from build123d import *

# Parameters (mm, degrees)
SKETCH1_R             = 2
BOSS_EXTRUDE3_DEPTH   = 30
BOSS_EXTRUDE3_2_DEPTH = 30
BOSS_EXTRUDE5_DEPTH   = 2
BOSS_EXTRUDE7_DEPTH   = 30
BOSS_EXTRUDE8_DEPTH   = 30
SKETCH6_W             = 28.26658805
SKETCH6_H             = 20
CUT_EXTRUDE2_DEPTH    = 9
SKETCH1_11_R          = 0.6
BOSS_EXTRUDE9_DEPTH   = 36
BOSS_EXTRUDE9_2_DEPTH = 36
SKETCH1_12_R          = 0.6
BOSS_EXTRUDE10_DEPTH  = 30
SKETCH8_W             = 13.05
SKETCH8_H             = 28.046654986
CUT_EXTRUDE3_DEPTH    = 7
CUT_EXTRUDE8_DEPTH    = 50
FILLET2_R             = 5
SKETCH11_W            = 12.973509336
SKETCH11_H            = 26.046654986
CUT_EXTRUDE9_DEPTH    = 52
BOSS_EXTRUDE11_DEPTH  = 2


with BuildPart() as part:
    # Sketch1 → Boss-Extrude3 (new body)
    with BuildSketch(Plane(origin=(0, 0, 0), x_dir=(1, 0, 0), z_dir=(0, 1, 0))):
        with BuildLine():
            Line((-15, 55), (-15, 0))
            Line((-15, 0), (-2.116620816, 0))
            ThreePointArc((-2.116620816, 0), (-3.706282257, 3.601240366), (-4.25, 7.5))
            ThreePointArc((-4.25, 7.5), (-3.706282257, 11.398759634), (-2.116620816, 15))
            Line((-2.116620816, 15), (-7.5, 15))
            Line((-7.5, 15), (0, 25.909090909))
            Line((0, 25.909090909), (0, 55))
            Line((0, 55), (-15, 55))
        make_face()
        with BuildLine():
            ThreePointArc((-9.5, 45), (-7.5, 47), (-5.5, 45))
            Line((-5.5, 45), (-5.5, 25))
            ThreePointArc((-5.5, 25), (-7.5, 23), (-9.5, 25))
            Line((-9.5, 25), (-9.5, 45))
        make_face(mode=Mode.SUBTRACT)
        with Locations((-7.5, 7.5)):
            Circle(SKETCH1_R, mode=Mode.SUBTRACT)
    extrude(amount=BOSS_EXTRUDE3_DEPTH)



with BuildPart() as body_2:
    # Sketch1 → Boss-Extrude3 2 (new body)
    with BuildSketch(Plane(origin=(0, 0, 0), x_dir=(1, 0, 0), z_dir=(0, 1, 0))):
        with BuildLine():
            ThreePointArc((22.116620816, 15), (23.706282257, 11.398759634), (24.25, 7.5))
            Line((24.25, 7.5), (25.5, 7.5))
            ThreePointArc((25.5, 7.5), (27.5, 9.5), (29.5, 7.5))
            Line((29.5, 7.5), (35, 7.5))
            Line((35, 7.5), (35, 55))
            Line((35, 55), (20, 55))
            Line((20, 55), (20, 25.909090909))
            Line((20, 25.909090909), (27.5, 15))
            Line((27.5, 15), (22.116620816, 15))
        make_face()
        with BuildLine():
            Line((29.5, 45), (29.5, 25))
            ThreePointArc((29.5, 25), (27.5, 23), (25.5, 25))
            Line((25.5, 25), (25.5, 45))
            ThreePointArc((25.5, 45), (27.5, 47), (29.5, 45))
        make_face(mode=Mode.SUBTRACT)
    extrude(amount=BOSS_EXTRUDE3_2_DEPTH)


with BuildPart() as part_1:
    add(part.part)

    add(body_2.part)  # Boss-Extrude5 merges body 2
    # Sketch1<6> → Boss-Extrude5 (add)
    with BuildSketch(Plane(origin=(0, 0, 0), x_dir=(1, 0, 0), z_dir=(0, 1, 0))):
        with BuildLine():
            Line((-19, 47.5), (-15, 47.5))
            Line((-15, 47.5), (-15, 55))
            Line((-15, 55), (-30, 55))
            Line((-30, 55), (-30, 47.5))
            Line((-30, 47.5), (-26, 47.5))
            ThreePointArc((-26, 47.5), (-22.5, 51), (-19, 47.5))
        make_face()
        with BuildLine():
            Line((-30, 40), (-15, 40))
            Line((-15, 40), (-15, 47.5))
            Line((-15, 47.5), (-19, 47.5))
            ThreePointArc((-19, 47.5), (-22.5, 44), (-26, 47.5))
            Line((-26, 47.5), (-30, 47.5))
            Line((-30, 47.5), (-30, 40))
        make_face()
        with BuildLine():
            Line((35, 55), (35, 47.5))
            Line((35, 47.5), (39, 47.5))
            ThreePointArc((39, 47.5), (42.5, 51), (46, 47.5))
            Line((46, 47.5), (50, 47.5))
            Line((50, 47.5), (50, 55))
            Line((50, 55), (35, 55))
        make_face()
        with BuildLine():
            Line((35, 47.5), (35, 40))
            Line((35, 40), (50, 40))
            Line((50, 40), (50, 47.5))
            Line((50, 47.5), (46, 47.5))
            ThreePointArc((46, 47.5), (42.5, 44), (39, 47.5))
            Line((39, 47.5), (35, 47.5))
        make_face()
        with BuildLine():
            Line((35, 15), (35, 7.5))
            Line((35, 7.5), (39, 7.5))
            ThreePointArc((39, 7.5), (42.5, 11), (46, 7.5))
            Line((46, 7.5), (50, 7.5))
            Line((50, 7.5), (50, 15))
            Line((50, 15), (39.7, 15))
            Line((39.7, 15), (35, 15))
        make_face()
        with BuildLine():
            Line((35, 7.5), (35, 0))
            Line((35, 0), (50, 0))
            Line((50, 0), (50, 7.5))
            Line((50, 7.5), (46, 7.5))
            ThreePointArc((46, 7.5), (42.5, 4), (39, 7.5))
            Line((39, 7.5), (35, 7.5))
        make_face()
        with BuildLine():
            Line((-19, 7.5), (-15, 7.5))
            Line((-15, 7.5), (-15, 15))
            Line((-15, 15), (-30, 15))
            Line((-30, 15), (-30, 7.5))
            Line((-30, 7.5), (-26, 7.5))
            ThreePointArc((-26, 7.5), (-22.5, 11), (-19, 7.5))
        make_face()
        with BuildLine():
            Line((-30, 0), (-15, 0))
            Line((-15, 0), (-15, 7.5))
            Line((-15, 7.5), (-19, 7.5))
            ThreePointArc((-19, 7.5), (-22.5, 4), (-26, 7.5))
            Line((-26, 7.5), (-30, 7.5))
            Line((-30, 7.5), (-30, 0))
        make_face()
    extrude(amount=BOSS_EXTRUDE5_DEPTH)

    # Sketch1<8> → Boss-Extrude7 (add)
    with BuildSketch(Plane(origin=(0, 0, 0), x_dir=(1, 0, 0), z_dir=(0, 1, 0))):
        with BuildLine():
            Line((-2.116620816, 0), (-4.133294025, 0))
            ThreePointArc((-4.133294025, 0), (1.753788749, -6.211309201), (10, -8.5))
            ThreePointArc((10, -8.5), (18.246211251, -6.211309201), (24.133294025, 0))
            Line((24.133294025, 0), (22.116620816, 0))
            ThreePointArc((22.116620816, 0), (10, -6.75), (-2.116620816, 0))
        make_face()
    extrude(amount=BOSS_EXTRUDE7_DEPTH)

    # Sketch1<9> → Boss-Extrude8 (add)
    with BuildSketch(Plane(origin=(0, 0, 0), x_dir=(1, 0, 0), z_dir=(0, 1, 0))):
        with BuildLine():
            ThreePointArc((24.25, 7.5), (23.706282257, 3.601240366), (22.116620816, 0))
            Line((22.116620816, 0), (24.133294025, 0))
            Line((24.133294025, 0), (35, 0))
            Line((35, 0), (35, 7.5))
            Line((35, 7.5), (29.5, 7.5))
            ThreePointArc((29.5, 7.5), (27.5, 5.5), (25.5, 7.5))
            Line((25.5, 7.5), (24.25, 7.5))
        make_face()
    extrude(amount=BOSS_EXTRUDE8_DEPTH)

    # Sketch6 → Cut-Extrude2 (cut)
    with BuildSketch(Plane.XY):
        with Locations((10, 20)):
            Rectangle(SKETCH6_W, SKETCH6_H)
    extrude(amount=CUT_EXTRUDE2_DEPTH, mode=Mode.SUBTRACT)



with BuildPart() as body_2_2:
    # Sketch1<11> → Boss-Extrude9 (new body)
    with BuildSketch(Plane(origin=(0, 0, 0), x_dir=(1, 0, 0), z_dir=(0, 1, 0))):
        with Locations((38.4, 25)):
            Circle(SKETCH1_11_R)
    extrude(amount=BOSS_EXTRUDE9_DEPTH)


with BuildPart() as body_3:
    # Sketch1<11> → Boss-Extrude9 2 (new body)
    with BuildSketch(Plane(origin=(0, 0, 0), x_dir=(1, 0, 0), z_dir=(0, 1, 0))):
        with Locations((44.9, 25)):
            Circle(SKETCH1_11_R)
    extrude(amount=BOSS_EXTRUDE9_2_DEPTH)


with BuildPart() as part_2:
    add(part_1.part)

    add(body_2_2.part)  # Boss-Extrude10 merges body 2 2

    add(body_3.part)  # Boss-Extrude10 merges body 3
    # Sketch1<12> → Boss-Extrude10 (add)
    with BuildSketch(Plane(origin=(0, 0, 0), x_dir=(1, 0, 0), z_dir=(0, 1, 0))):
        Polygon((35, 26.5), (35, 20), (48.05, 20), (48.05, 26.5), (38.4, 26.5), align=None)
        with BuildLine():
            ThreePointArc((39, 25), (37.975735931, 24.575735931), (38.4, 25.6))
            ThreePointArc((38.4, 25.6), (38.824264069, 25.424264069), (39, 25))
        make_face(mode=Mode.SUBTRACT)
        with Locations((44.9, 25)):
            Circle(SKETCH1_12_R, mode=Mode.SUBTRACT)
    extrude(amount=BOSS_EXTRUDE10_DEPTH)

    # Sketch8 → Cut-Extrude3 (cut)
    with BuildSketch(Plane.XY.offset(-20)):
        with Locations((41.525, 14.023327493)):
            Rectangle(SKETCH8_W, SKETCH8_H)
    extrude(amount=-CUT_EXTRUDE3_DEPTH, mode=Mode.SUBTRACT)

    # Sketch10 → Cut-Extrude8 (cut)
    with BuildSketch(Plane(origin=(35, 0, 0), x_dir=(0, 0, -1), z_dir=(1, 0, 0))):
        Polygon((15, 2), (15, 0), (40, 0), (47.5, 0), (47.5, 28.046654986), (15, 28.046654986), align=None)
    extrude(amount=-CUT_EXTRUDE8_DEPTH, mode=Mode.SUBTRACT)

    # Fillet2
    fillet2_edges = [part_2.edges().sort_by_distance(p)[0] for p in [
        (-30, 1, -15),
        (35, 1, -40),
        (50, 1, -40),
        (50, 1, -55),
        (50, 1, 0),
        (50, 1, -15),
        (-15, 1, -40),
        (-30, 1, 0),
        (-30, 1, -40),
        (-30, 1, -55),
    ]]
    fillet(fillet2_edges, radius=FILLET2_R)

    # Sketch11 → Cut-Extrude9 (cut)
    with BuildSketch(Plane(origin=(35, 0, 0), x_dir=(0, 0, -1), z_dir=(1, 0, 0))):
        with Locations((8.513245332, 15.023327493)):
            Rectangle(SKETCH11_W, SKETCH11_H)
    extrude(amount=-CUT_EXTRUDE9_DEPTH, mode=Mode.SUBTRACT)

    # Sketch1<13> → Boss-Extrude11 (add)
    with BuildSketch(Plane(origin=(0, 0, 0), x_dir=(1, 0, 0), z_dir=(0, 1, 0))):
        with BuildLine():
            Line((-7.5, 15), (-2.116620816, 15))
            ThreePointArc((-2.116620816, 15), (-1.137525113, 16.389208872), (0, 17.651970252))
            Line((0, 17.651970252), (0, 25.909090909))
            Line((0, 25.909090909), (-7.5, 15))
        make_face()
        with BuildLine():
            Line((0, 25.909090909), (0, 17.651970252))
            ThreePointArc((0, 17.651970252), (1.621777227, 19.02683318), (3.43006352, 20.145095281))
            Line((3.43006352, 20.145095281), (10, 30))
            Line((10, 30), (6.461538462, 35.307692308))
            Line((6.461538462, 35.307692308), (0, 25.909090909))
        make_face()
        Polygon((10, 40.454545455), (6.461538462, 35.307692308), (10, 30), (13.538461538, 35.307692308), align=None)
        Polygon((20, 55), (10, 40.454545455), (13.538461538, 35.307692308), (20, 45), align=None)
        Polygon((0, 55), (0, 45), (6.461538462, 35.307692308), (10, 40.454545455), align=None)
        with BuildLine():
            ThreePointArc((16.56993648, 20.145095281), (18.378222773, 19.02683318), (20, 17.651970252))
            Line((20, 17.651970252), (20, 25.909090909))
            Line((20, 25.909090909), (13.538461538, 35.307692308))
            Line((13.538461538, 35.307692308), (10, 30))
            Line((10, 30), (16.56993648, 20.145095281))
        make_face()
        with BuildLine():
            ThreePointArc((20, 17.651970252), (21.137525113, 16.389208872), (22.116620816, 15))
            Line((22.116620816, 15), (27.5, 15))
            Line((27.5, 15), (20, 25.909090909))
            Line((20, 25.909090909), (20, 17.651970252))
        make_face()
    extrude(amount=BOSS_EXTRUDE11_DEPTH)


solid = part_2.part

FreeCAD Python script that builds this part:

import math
import FreeCAD as App
import Part
import Sketcher
Q = App.Units.Quantity


def edges_at(feature, points):
    """Names of the edges that pass closest to the given points."""
    edges = feature.Shape.Edges
    near = lambda p: min(range(len(edges)), key=lambda i: edges[i].distToShape(Part.Vertex(*p))[0])
    return sorted({f"Edge{near(p) + 1}" for p in points})


def add_polygon(sketch, points):
    """Adds a closed chain of lines whose ends are joined by coincident constraints."""
    first, n = sketch.GeometryCount, len(points)
    for a, b in zip(points, points[1:] + points[:1]):
        sketch.addGeometry(Part.LineSegment(App.Vector(*a, 0), App.Vector(*b, 0)), False)
    for i in range(n):
        sketch.addConstraint(Sketcher.Constraint("Coincident", first + i, 2, first + (i + 1) % n, 1))

doc = App.newDocument("Part")
body = doc.addObject("PartDesign::Body", "Body")

sketch1 = body.newObject("Sketcher::SketchObject", "Sketch")
sketch1.AttachmentSupport = (doc.getObject("XZ_Plane"), [""])
sketch1.MapMode = "FlatFace"
sketch1.addGeometry(Part.LineSegment(App.Vector(-15, -55, 0), App.Vector(-15, 0, 0)), False)
sketch1.addGeometry(Part.LineSegment(App.Vector(-15, 0, 0), App.Vector(-2.116621, 0, 0)), False)
sketch1.addGeometry(Part.ArcOfCircle(Part.Circle(App.Vector(10, -7.5, 0), App.Vector(0, 0, 1), 14.25), math.radians(148.243136), math.radians(180)), False)
sketch1.addGeometry(Part.ArcOfCircle(Part.Circle(App.Vector(10, -7.5, 0), App.Vector(0, 0, 1), 14.25), math.radians(-180), math.radians(-148.243136)), False)
sketch1.addGeometry(Part.LineSegment(App.Vector(-2.116621, -15, 0), App.Vector(-7.5, -15, 0)), False)
sketch1.addGeometry(Part.LineSegment(App.Vector(-7.5, -15, 0), App.Vector(0, -25.909091, 0)), False)
sketch1.addGeometry(Part.LineSegment(App.Vector(0, -25.909091, 0), App.Vector(0, -55, 0)), False)
sketch1.addGeometry(Part.LineSegment(App.Vector(0, -55, 0), App.Vector(-15, -55, 0)), False)
sketch1.addGeometry(Part.Circle(App.Vector(-7.5, -7.5, 0), App.Vector(0, 0, 1), 2), False)
sketch1.addGeometry(Part.LineSegment(App.Vector(-9.5, -25, 0), App.Vector(-9.5, -45, 0)), False)
sketch1.addGeometry(Part.ArcOfCircle(Part.Circle(App.Vector(-7.5, -45, 0), App.Vector(0, 0, 1), 2), math.radians(180), math.radians(360)), False)
sketch1.addGeometry(Part.LineSegment(App.Vector(-5.5, -45, 0), App.Vector(-5.5, -25, 0)), False)
sketch1.addGeometry(Part.ArcOfCircle(Part.Circle(App.Vector(-7.5, -25, 0), App.Vector(0, 0, 1), 2), math.radians(0), math.radians(180)), False)
sketch1.addConstraint(Sketcher.Constraint("Coincident", 0, 2, 1, 1))
sketch1.addConstraint(Sketcher.Constraint("Coincident", 1, 2, 2, 1))
sketch1.addConstraint(Sketcher.Constraint("Tangent", 2, 2, 3, 1))
sketch1.addConstraint(Sketcher.Constraint("Coincident", 3, 2, 4, 1))
sketch1.addConstraint(Sketcher.Constraint("Coincident", 4, 2, 5, 1))
sketch1.addConstraint(Sketcher.Constraint("Coincident", 5, 2, 6, 1))
sketch1.addConstraint(Sketcher.Constraint("Coincident", 6, 2, 7, 1))
sketch1.addConstraint(Sketcher.Constraint("Coincident", 7, 2, 0, 1))
sketch1.addConstraint(Sketcher.Constraint("Tangent", 9, 2, 10, 1))
sketch1.addConstraint(Sketcher.Constraint("Tangent", 10, 2, 11, 1))
sketch1.addConstraint(Sketcher.Constraint("Tangent", 11, 2, 12, 1))
sketch1.addConstraint(Sketcher.Constraint("Tangent", 12, 2, 9, 1))
sketch1.addConstraint(Sketcher.Constraint("Vertical", 0))
sketch1.addConstraint(Sketcher.Constraint("Horizontal", 1))
sketch1.addConstraint(Sketcher.Constraint("Horizontal", 4))
sketch1.addConstraint(Sketcher.Constraint("Vertical", 6))
sketch1.addConstraint(Sketcher.Constraint("Horizontal", 7))
sketch1.addConstraint(Sketcher.Constraint("Vertical", 9))
sketch1.addConstraint(Sketcher.Constraint("Vertical", 11))
sketch1.addConstraint(Sketcher.Constraint("Equal", 2, 3))
sketch1.addConstraint(Sketcher.Constraint("Equal", 8, 10))
sketch1.addConstraint(Sketcher.Constraint("PointOnObject", 0, 2, -1))
sketch1.addConstraint(Sketcher.Constraint("PointOnObject", 5, 2, -2))
sketch1.addConstraint(Sketcher.Constraint("Horizontal", 3, 3, 8, 3))
sketch1.addConstraint(Sketcher.Constraint("Horizontal", 8, 3, 2, 2))
sketch1.addConstraint(Sketcher.Constraint("Vertical", 8, 3, 10, 3))
sketch1.addConstraint(Sketcher.Constraint("Vertical", 1, 2, 3, 2))
sketch1.addConstraint(Sketcher.Constraint("Vertical", 12, 3, 4, 2))
sketch1.addConstraint(Sketcher.Constraint("Diameter", 8, Q("4 mm")))
sketch1.addConstraint(Sketcher.Constraint("DistanceX", 7, 2, 7, 1, Q("15 mm")))
sketch1.addConstraint(Sketcher.Constraint("DistanceY", 0, 1, 0, 2, Q("55 mm")))
sketch1.addConstraint(Sketcher.Constraint("DistanceY", 9, 2, 9, 1, Q("20 mm")))
sketch1.addConstraint(Sketcher.Constraint("Radius", 2, Q("14.25 mm")))
sketch1.addConstraint(Sketcher.Constraint("DistanceX", -1, 1, 2, 3, Q("10 mm")))
sketch1.addConstraint(Sketcher.Constraint("DistanceY", 10, 3, -1, 1, Q("45 mm")))
sketch1.addConstraint(Sketcher.Constraint("DistanceY", 3, 2, -1, 1, Q("15 mm")))
sketch1.addConstraint(Sketcher.Constraint("DistanceX", 8, 3, -1, 1, Q("7.5 mm")))
sketch1.addConstraint(Sketcher.Constraint("DistanceY", 6, 2, 6, 1, Q("29.090909 mm")))
pad1 = body.newObject("PartDesign::Pad", "Pad")
pad1.Profile = sketch1
pad1.Length = 30
pad1.Reversed = True
body2 = doc.addObject("PartDesign::Body", "Body001")

sketch2 = body2.newObject("Sketcher::SketchObject", "Sketch001")
sketch2.AttachmentSupport = (doc.getObject("XZ_Plane001"), [""])
sketch2.MapMode = "FlatFace"
sketch2.addGeometry(Part.ArcOfCircle(Part.Circle(App.Vector(10, -7.5, 0), App.Vector(0, 0, 1), 14.25), math.radians(-31.756864), math.radians(0)), False)
sketch2.addGeometry(Part.LineSegment(App.Vector(24.25, -7.5, 0), App.Vector(25.5, -7.5, 0)), False)
sketch2.addGeometry(Part.ArcOfCircle(Part.Circle(App.Vector(27.5, -7.5, 0), App.Vector(0, 0, 1), 2), math.radians(180), math.radians(360)), False)
sketch2.addGeometry(Part.LineSegment(App.Vector(29.5, -7.5, 0), App.Vector(35, -7.5, 0)), False)
sketch2.addGeometry(Part.LineSegment(App.Vector(35, -7.5, 0), App.Vector(35, -55, 0)), False)
sketch2.addGeometry(Part.LineSegment(App.Vector(35, -55, 0), App.Vector(20, -55, 0)), False)
sketch2.addGeometry(Part.LineSegment(App.Vector(20, -55, 0), App.Vector(20, -25.909091, 0)), False)
sketch2.addGeometry(Part.LineSegment(App.Vector(20, -25.909091, 0), App.Vector(27.5, -15, 0)), False)
sketch2.addGeometry(Part.LineSegment(App.Vector(27.5, -15, 0), App.Vector(22.116621, -15, 0)), False)
sketch2.addGeometry(Part.ArcOfCircle(Part.Circle(App.Vector(27.5, -45, 0), App.Vector(0, 0, 1), 2), math.radians(180), math.radians(360)), False)
sketch2.addGeometry(Part.LineSegment(App.Vector(29.5, -45, 0), App.Vector(29.5, -25, 0)), False)
sketch2.addGeometry(Part.ArcOfCircle(Part.Circle(App.Vector(27.5, -25, 0), App.Vector(0, 0, 1), 2), math.radians(0), math.radians(180)), False)
sketch2.addGeometry(Part.LineSegment(App.Vector(25.5, -25, 0), App.Vector(25.5, -45, 0)), False)
sketch2.addConstraint(Sketcher.Constraint("Coincident", 0, 2, 1, 1))
sketch2.addConstraint(Sketcher.Constraint("Coincident", 1, 2, 2, 1))
sketch2.addConstraint(Sketcher.Constraint("Coincident", 2, 2, 3, 1))
sketch2.addConstraint(Sketcher.Constraint("Coincident", 3, 2, 4, 1))
sketch2.addConstraint(Sketcher.Constraint("Coincident", 4, 2, 5, 1))
sketch2.addConstraint(Sketcher.Constraint("Coincident", 5, 2, 6, 1))
sketch2.addConstraint(Sketcher.Constraint("Coincident", 6, 2, 7, 1))
sketch2.addConstraint(Sketcher.Constraint("Coincident", 7, 2, 8, 1))
sketch2.addConstraint(Sketcher.Constraint("Coincident", 8, 2, 0, 1))
sketch2.addConstraint(Sketcher.Constraint("Tangent", 9, 2, 10, 1))
sketch2.addConstraint(Sketcher.Constraint("Tangent", 10, 2, 11, 1))
sketch2.addConstraint(Sketcher.Constraint("Tangent", 11, 2, 12, 1))
sketch2.addConstraint(Sketcher.Constraint("Tangent", 12, 2, 9, 1))
sketch2.addConstraint(Sketcher.Constraint("Horizontal", 1))
sketch2.addConstraint(Sketcher.Constraint("Horizontal", 3))
sketch2.addConstraint(Sketcher.Constraint("Vertical", 4))
sketch2.addConstraint(Sketcher.Constraint("Horizontal", 5))
sketch2.addConstraint(Sketcher.Constraint("Vertical", 6))
sketch2.addConstraint(Sketcher.Constraint("Horizontal", 8))
sketch2.addConstraint(Sketcher.Constraint("Vertical", 10))
sketch2.addConstraint(Sketcher.Constraint("Vertical", 12))
sketch2.addConstraint(Sketcher.Constraint("Equal", 2, 9))
sketch2.addConstraint(Sketcher.Constraint("Horizontal", 0, 3, 2, 3))
sketch2.addConstraint(Sketcher.Constraint("Horizontal", 2, 3, 0, 2))
sketch2.addConstraint(Sketcher.Constraint("Horizontal", 1, 2, 2, 2))
sketch2.addConstraint(Sketcher.Constraint("Vertical", 2, 3, 9, 3))
sketch2.addConstraint(Sketcher.Constraint("Vertical", 11, 3, 7, 2))
sketch2.addConstraint(Sketcher.Constraint("Radius", 2, Q("2 mm")))
sketch2.addConstraint(Sketcher.Constraint("DistanceX", 5, 2, 5, 1, Q("15 mm")))
sketch2.addConstraint(Sketcher.Constraint("DistanceY", 10, 1, 10, 2, Q("20 mm")))
sketch2.addConstraint(Sketcher.Constraint("Radius", 0, Q("14.25 mm")))
sketch2.addConstraint(Sketcher.Constraint("DistanceX", 3, 1, 3, 2, Q("5.5 mm")))
sketch2.addConstraint(Sketcher.Constraint("DistanceY", 4, 2, 4, 1, Q("47.5 mm")))
sketch2.addConstraint(Sketcher.Constraint("DistanceX", -1, 1, 0, 3, Q("10 mm")))
sketch2.addConstraint(Sketcher.Constraint("DistanceY", 9, 3, -1, 1, Q("45 mm")))
sketch2.addConstraint(Sketcher.Constraint("DistanceX", -1, 1, 3, 2, Q("35 mm")))
sketch2.addConstraint(Sketcher.Constraint("DistanceY", 4, 2, -1, 1, Q("55 mm")))
sketch2.addConstraint(Sketcher.Constraint("DistanceY", 7, 2, -1, 1, Q("15 mm")))
sketch2.addConstraint(Sketcher.Constraint("DistanceY", 6, 1, 6, 2, Q("29.090909 mm")))
pad2 = body2.newObject("PartDesign::Pad", "Pad001")
pad2.Profile = sketch2
pad2.Length = 30
pad2.Reversed = True
body.AllowCompound = True
doc.recompute()

boolean = body.newObject("PartDesign::Boolean", "Boolean")
boolean.Type = "Fuse"
boolean.addObjects([body2])

sketch3 = body.newObject("Sketcher::SketchObject", "Sketch002")
sketch3.AttachmentSupport = (doc.getObject("XZ_Plane"), [""])
sketch3.MapMode = "FlatFace"
add_polygon(sketch3, [(-15, -55), (-30, -55), (-30, -40), (-15, -40)])
sketch3.addGeometry(Part.Circle(App.Vector(-22.5, -47.5, 0), App.Vector(0, 0, 1), 3.5), False)
add_polygon(sketch3, [(35, -55), (35, -40), (50, -40), (50, -55)])
sketch3.addGeometry(Part.Circle(App.Vector(42.5, -47.5, 0), App.Vector(0, 0, 1), 3.5), False)
add_polygon(sketch3, [(35, -15), (35, 0), (50, 0), (50, -15)])
sketch3.addGeometry(Part.Circle(App.Vector(42.5, -7.5, 0), App.Vector(0, 0, 1), 3.5), False)
add_polygon(sketch3, [(-15, -15), (-30, -15), (-30, 0), (-15, 0)])
sketch3.addGeometry(Part.Circle(App.Vector(-22.5, -7.5, 0), App.Vector(0, 0, 1), 3.5), False)
sketch3.addConstraint(Sketcher.Constraint("Horizontal", 0))
sketch3.addConstraint(Sketcher.Constraint("Vertical", 1))
sketch3.addConstraint(Sketcher.Constraint("Horizontal", 2))
sketch3.addConstraint(Sketcher.Constraint("Vertical", 3))
sketch3.addConstraint(Sketcher.Constraint("Vertical", 5))
sketch3.addConstraint(Sketcher.Constraint("Horizontal", 6))
sketch3.addConstraint(Sketcher.Constraint("Vertical", 7))
sketch3.addConstraint(Sketcher.Constraint("Horizontal", 8))
sketch3.addConstraint(Sketcher.Constraint("Vertical", 10))
sketch3.addConstraint(Sketcher.Constraint("Horizontal", 11))
sketch3.addConstraint(Sketcher.Constraint("Vertical", 12))
sketch3.addConstraint(Sketcher.Constraint("Horizontal", 13))
sketch3.addConstraint(Sketcher.Constraint("Horizontal", 15))
sketch3.addConstraint(Sketcher.Constraint("Vertical", 16))
sketch3.addConstraint(Sketcher.Constraint("Horizontal", 17))
sketch3.addConstraint(Sketcher.Constraint("Vertical", 18))
sketch3.addConstraint(Sketcher.Constraint("Equal", 4, 9))
sketch3.addConstraint(Sketcher.Constraint("Equal", 9, 14))
sketch3.addConstraint(Sketcher.Constraint("Equal", 14, 19))
sketch3.addConstraint(Sketcher.Constraint("PointOnObject", 10, 2, -1))
sketch3.addConstraint(Sketcher.Constraint("PointOnObject", 16, 2, -1))
sketch3.addConstraint(Sketcher.Constraint("Horizontal", 4, 3, 9, 3))
sketch3.addConstraint(Sketcher.Constraint("Horizontal", 14, 3, 19, 3))
sketch3.addConstraint(Sketcher.Constraint("Horizontal", 2, 2, 5, 2))
sketch3.addConstraint(Sketcher.Constraint("Horizontal", 3, 2, 7, 2))
sketch3.addConstraint(Sketcher.Constraint("Horizontal", 13, 2, 15, 2))
sketch3.addConstraint(Sketcher.Constraint("Vertical", 9, 3, 14, 3))
sketch3.addConstraint(Sketcher.Constraint("Vertical", 4, 3, 19, 3))
sketch3.addConstraint(Sketcher.Constraint("Vertical", 8, 2, 10, 2))
sketch3.addConstraint(Sketcher.Constraint("Vertical", 7, 2, 11, 2))
sketch3.addConstraint(Sketcher.Constraint("Vertical", 1, 2, 15, 2))
sketch3.addConstraint(Sketcher.Constraint("Vertical", 3, 2, 17, 2))
sketch3.addConstraint(Sketcher.Constraint("Equal", 2, 6))
sketch3.addConstraint(Sketcher.Constraint("Equal", 17, 1))
sketch3.addConstraint(Sketcher.Constraint("Equal", 7, 10))
sketch3.addConstraint(Sketcher.Constraint("Diameter", 4, Q("7 mm")))
sketch3.addConstraint(Sketcher.Constraint("DistanceX", 0, 2, 0, 1, Q("15 mm")))
sketch3.addConstraint(Sketcher.Constraint("DistanceX", 0, 2, -1, 1, Q("30 mm")))
sketch3.addConstraint(Sketcher.Constraint("DistanceY", 0, 2, -1, 1, Q("55 mm")))
sketch3.addConstraint(Sketcher.Constraint("DistanceX", -1, 1, 5, 2, Q("35 mm")))
sketch3.addConstraint(Sketcher.Constraint("DistanceX", 4, 3, 9, 3, Q("65 mm")))
sketch3.addConstraint(Sketcher.Constraint("DistanceY", 9, 3, 14, 3, Q("40 mm")))
sketch3.addConstraint(Sketcher.Constraint("DistanceX", 4, 3, -1, 1, Q("22.5 mm")))
sketch3.addConstraint(Sketcher.Constraint("DistanceY", 4, 3, -1, 1, Q("47.5 mm")))
pad3 = body.newObject("PartDesign::Pad", "Pad002")
pad3.Profile = sketch3
pad3.Length = 2
pad3.Reversed = True

sketch4 = body.newObject("Sketcher::SketchObject", "Sketch003")
sketch4.AttachmentSupport = (doc.getObject("XZ_Plane"), [""])
sketch4.MapMode = "FlatFace"
sketch4.addGeometry(Part.LineSegment(App.Vector(-2.116621, 0, 0), App.Vector(-4.133294, 0, 0)), False)
sketch4.addGeometry(Part.ArcOfCircle(Part.Circle(App.Vector(10, -7.5, 0), App.Vector(0, 0, 1), 16), math.radians(90), math.radians(152.046813)), False)
sketch4.addGeometry(Part.ArcOfCircle(Part.Circle(App.Vector(10, -7.5, 0), App.Vector(0, 0, 1), 16), math.radians(27.953187), math.radians(90)), False)
sketch4.addGeometry(Part.LineSegment(App.Vector(24.133294, 0, 0), App.Vector(22.116621, 0, 0)), False)
sketch4.addGeometry(Part.ArcOfCircle(Part.Circle(App.Vector(10, -7.5, 0), App.Vector(0, 0, 1), 14.25), math.radians(31.756864), math.radians(148.243136)), False)
sketch4.addConstraint(Sketcher.Constraint("Coincident", 0, 2, 1, 2))
sketch4.addConstraint(Sketcher.Constraint("Tangent", 1, 1, 2, 2))
sketch4.addConstraint(Sketcher.Constraint("Coincident", 2, 1, 3, 1))
sketch4.addConstraint(Sketcher.Constraint("Coincident", 3, 2, 4, 1))
sketch4.addConstraint(Sketcher.Constraint("Coincident", 4, 2, 0, 1))
sketch4.addConstraint(Sketcher.Constraint("Horizontal", 0))
sketch4.addConstraint(Sketcher.Constraint("Horizontal", 3))
sketch4.addConstraint(Sketcher.Constraint("Coincident", 4, 3, 1, 3))
sketch4.addConstraint(Sketcher.Constraint("Equal", 1, 2))
sketch4.addConstraint(Sketcher.Constraint("PointOnObject", 0, 2, -1))
sketch4.addConstraint(Sketcher.Constraint("PointOnObject", 2, 1, -1))
sketch4.addConstraint(Sketcher.Constraint("Vertical", 4, 3, 1, 1))
sketch4.addConstraint(Sketcher.Constraint("Radius", 1, Q("16 mm")))
sketch4.addConstraint(Sketcher.Constraint("Radius", 4, Q("14.25 mm")))
sketch4.addConstraint(Sketcher.Constraint("DistanceX", -1, 1, 1, 3, Q("10 mm")))
sketch4.addConstraint(Sketcher.Constraint("DistanceY", 1, 3, -1, 1, Q("7.5 mm")))
pad4 = body.newObject("PartDesign::Pad", "Pad003")
pad4.Profile = sketch4
pad4.Length = 30
pad4.Reversed = True

sketch5 = body.newObject("Sketcher::SketchObject", "Sketch004")
sketch5.AttachmentSupport = (doc.getObject("XZ_Plane"), [""])
sketch5.MapMode = "FlatFace"
sketch5.addGeometry(Part.ArcOfCircle(Part.Circle(App.Vector(10, -7.5, 0), App.Vector(0, 0, 1), 14.25), math.radians(0), math.radians(31.756864)), False)
sketch5.addGeometry(Part.LineSegment(App.Vector(22.116621, 0, 0), App.Vector(35, 0, 0)), False)
sketch5.addGeometry(Part.LineSegment(App.Vector(35, 0, 0), App.Vector(35, -7.5, 0)), False)
sketch5.addGeometry(Part.LineSegment(App.Vector(35, -7.5, 0), App.Vector(29.5, -7.5, 0)), False)
sketch5.addGeometry(Part.ArcOfCircle(Part.Circle(App.Vector(27.5, -7.5, 0), App.Vector(0, 0, 1), 2), math.radians(0), math.radians(180)), False)
sketch5.addGeometry(Part.LineSegment(App.Vector(25.5, -7.5, 0), App.Vector(24.25, -7.5, 0)), False)
sketch5.addConstraint(Sketcher.Constraint("Coincident", 0, 2, 1, 1))
sketch5.addConstraint(Sketcher.Constraint("Coincident", 1, 2, 2, 1))
sketch5.addConstraint(Sketcher.Constraint("Coincident", 2, 2, 3, 1))
sketch5.addConstraint(Sketcher.Constraint("Coincident", 3, 2, 4, 1))
sketch5.addConstraint(Sketcher.Constraint("Coincident", 4, 2, 5, 1))
sketch5.addConstraint(Sketcher.Constraint("Coincident", 5, 2, 0, 1))
sketch5.addConstraint(Sketcher.Constraint("Horizontal", 1))
sketch5.addConstraint(Sketcher.Constraint("Vertical", 2))
sketch5.addConstraint(Sketcher.Constraint("Horizontal", 3))
sketch5.addConstraint(Sketcher.Constraint("Horizontal", 5))
sketch5.addConstraint(Sketcher.Constraint("PointOnObject", 0, 2, -1))
sketch5.addConstraint(Sketcher.Constraint("Horizontal", 0, 3, 4, 3))
sketch5.addConstraint(Sketcher.Constraint("Horizontal", 4, 3, 2, 2))
sketch5.addConstraint(Sketcher.Constraint("Horizontal", 3, 2, 4, 2))
sketch5.addConstraint(Sketcher.Constraint("Radius", 4, Q("2 mm")))
sketch5.addConstraint(Sketcher.Constraint("Radius", 0, Q("14.25 mm")))
sketch5.addConstraint(Sketcher.Constraint("DistanceX", 3, 2, 3, 1, Q("5.5 mm")))
sketch5.addConstraint(Sketcher.Constraint("DistanceY", 2, 2, 2, 1, Q("7.5 mm")))
sketch5.addConstraint(Sketcher.Constraint("DistanceX", -1, 1, 0, 3, Q("10 mm")))
sketch5.addConstraint(Sketcher.Constraint("DistanceX", -1, 1, 1, 2, Q("35 mm")))
pad5 = body.newObject("PartDesign::Pad", "Pad004")
pad5.Profile = sketch5
pad5.Length = 30
pad5.Reversed = True

sketch6 = body.newObject("Sketcher::SketchObject", "Sketch005")
sketch6.AttachmentSupport = (doc.getObject("XY_Plane"), [""])
sketch6.MapMode = "FlatFace"
add_polygon(sketch6, [(-4.133294, 30), (-4.133294, 10), (24.133294, 10), (24.133294, 30)])
sketch6.addConstraint(Sketcher.Constraint("Vertical", 0))
sketch6.addConstraint(Sketcher.Constraint("Horizontal", 1))
sketch6.addConstraint(Sketcher.Constraint("Vertical", 2))
sketch6.addConstraint(Sketcher.Constraint("Horizontal", 3))
sketch6.addConstraint(Sketcher.Constraint("DistanceY", 0, 2, 0, 1, Q("20 mm")))
sketch6.addConstraint(Sketcher.Constraint("DistanceY", -1, 1, 0, 2, Q("10 mm")))
sketch6.addConstraint(Sketcher.Constraint("DistanceX", 1, 1, 1, 2, Q("28.266588 mm")))
sketch6.addConstraint(Sketcher.Constraint("DistanceX", 0, 2, -1, 1, Q("4.133294 mm")))
pocket1 = body.newObject("PartDesign::Pocket", "Pocket")
pocket1.Profile = sketch6
pocket1.Length = 9
pocket1.Reversed = True
body3 = doc.addObject("PartDesign::Body", "Body002")

sketch7 = body3.newObject("Sketcher::SketchObject", "Sketch006")
sketch7.AttachmentSupport = (doc.getObject("XZ_Plane002"), [""])
sketch7.MapMode = "FlatFace"
sketch7.addGeometry(Part.Circle(App.Vector(38.4, -25, 0), App.Vector(0, 0, 1), 0.6), False)
sketch7.addConstraint(Sketcher.Constraint("Diameter", 0, Q("1.2 mm")))
sketch7.addConstraint(Sketcher.Constraint("DistanceY", 0, 3, -1, 1, Q("25 mm")))
sketch7.addConstraint(Sketcher.Constraint("DistanceX", -1, 1, 0, 3, Q("38.4 mm")))
pad6 = body3.newObject("PartDesign::Pad", "Pad005")
pad6.Profile = sketch7
pad6.Length = 36
pad6.Reversed = True
body4 = doc.addObject("PartDesign::Body", "Body003")

sketch8 = body4.newObject("Sketcher::SketchObject", "Sketch007")
sketch8.AttachmentSupport = (doc.getObject("XZ_Plane003"), [""])
sketch8.MapMode = "FlatFace"
sketch8.addGeometry(Part.Circle(App.Vector(44.9, -25, 0), App.Vector(0, 0, 1), 0.6), False)
sketch8.addConstraint(Sketcher.Constraint("Diameter", 0, Q("1.2 mm")))
sketch8.addConstraint(Sketcher.Constraint("DistanceY", 0, 3, -1, 1, Q("25 mm")))
sketch8.addConstraint(Sketcher.Constraint("DistanceX", -1, 1, 0, 3, Q("44.9 mm")))
pad7 = body4.newObject("PartDesign::Pad", "Pad006")
pad7.Profile = sketch8
pad7.Length = 36
pad7.Reversed = True
body.AllowCompound = True
doc.recompute()

boolean2 = body.newObject("PartDesign::Boolean", "Boolean001")
boolean2.Type = "Fuse"
boolean2.addObjects([body3])
doc.recompute()

boolean3 = body.newObject("PartDesign::Boolean", "Boolean002")
boolean3.Type = "Fuse"
boolean3.addObjects([body4])

sketch9 = body.newObject("Sketcher::SketchObject", "Sketch008")
sketch9.AttachmentSupport = (doc.getObject("XZ_Plane"), [""])
sketch9.MapMode = "FlatFace"
add_polygon(sketch9, [(35, -26.5), (35, -20), (48.05, -20), (48.05, -26.5)])
sketch9.addGeometry(Part.ArcOfCircle(Part.Circle(App.Vector(38.4, -25, 0), App.Vector(0, 0, 1), 0.6), math.radians(-90), math.radians(0)), False)
sketch9.addGeometry(Part.ArcOfCircle(Part.Circle(App.Vector(38.4, -25, 0), App.Vector(0, 0, 1), 0.6), math.radians(0), math.radians(270)), False)
sketch9.addGeometry(Part.Circle(App.Vector(44.9, -25, 0), App.Vector(0, 0, 1), 0.6), False)
sketch9.addConstraint(Sketcher.Constraint("Tangent", 4, 1, 5, 2))
sketch9.addConstraint(Sketcher.Constraint("Coincident", 5, 1, 4, 2))
sketch9.addConstraint(Sketcher.Constraint("Vertical", 0))
sketch9.addConstraint(Sketcher.Constraint("Horizontal", 1))
sketch9.addConstraint(Sketcher.Constraint("Vertical", 2))
sketch9.addConstraint(Sketcher.Constraint("Horizontal", 3))
sketch9.addConstraint(Sketcher.Constraint("Equal", 5, 6))
sketch9.addConstraint(Sketcher.Constraint("Horizontal", 5, 3, 6, 3))
sketch9.addConstraint(Sketcher.Constraint("Horizontal", 6, 3, 5, 1))
sketch9.addConstraint(Sketcher.Constraint("Vertical", 5, 3, 4, 1))
sketch9.addConstraint(Sketcher.Constraint("Diameter", 6, Q("1.2 mm")))
sketch9.addConstraint(Sketcher.Constraint("DistanceY", 0, 1, 0, 2, Q("6.5 mm")))
sketch9.addConstraint(Sketcher.Constraint("DistanceY", 4, 3, -1, 1, Q("25 mm")))
sketch9.addConstraint(Sketcher.Constraint("DistanceX", -1, 1, 0, 2, Q("35 mm")))
sketch9.addConstraint(Sketcher.Constraint("DistanceY", 0, 2, -1, 1, Q("20 mm")))
sketch9.addConstraint(Sketcher.Constraint("DistanceX", -1, 1, 5, 1, Q("39 mm")))
sketch9.addConstraint(Sketcher.Constraint("DistanceX", 1, 1, 1, 2, Q("13.05 mm")))
sketch9.addConstraint(Sketcher.Constraint("DistanceX", -1, 1, 6, 3, Q("44.9 mm")))
pad8 = body.newObject("PartDesign::Pad", "Pad007")
pad8.Profile = sketch9
pad8.Length = 30
pad8.Reversed = True

sketch10 = body.newObject("Sketcher::SketchObject", "Sketch009")
sketch10.AttachmentSupport = (doc.getObject("XY_Plane"), [""])
sketch10.MapMode = "FlatFace"
sketch10.AttachmentOffset = App.Placement(App.Vector(0, 0, -20), App.Rotation())
add_polygon(sketch10, [(35, 28.046655), (35, 0), (48.05, 0), (48.05, 28.046655)])
sketch10.addConstraint(Sketcher.Constraint("Vertical", 0))
sketch10.addConstraint(Sketcher.Constraint("Horizontal", 1))
sketch10.addConstraint(Sketcher.Constraint("Vertical", 2))
sketch10.addConstraint(Sketcher.Constraint("Horizontal", 3))
sketch10.addConstraint(Sketcher.Constraint("PointOnObject", 0, 2, -1))
sketch10.addConstraint(Sketcher.Constraint("DistanceX", -1, 1, 0, 2, Q("35 mm")))
sketch10.addConstraint(Sketcher.Constraint("DistanceX", 1, 1, 1, 2, Q("13.05 mm")))
sketch10.addConstraint(Sketcher.Constraint("DistanceY", 0, 2, 0, 1, Q("28.046655 mm")))
pocket2 = body.newObject("PartDesign::Pocket", "Pocket001")
pocket2.Profile = sketch10
pocket2.Length = 7

sketch11 = body.newObject("Sketcher::SketchObject", "Sketch010")
sketch11.AttachmentSupport = (doc.getObject("YZ_Plane"), [""])
sketch11.MapMode = "FlatFace"
sketch11.AttachmentOffset = App.Placement(App.Vector(0, 0, 35), App.Rotation())
add_polygon(sketch11, [(0, -15), (0, -47.5), (28.046655, -47.5), (28.046655, -15)])
sketch11.addConstraint(Sketcher.Constraint("Vertical", 0))
sketch11.addConstraint(Sketcher.Constraint("Horizontal", 1))
sketch11.addConstraint(Sketcher.Constraint("Vertical", 2))
sketch11.addConstraint(Sketcher.Constraint("Horizontal", 3))
sketch11.addConstraint(Sketcher.Constraint("PointOnObject", 0, 2, -2))
sketch11.addConstraint(Sketcher.Constraint("DistanceY", 0, 2, 0, 1, Q("32.5 mm")))
sketch11.addConstraint(Sketcher.Constraint("DistanceY", 2, 2, -1, 1, Q("15 mm")))
sketch11.addConstraint(Sketcher.Constraint("DistanceX", 1, 1, 1, 2, Q("28.046655 mm")))
pocket3 = body.newObject("PartDesign::Pocket", "Pocket002")
pocket3.Profile = sketch11
pocket3.Length = 50
doc.recompute()

fillet = body.newObject("PartDesign::Fillet", "Fillet")
fillet.Base = (pocket3, edges_at(pocket3, [
    (-30, 1, -15),
    (35, 1, -40),
    (50, 1, -40),
    (50, 1, -55),
    (50, 1, 0),
    (50, 1, -15),
    (-15, 1, -40),
    (-30, 1, 0),
    (-30, 1, -40),
    (-30, 1, -55),
]))
fillet.Radius = 5

sketch12 = body.newObject("Sketcher::SketchObject", "Sketch011")
sketch12.AttachmentSupport = (doc.getObject("YZ_Plane"), [""])
sketch12.MapMode = "FlatFace"
sketch12.AttachmentOffset = App.Placement(App.Vector(0, 0, 35), App.Rotation())
add_polygon(sketch12, [(28.046655, -2.026491), (2, -2.026491), (2, -15), (28.046655, -15)])
sketch12.addConstraint(Sketcher.Constraint("Horizontal", 0))
sketch12.addConstraint(Sketcher.Constraint("Vertical", 1))
sketch12.addConstraint(Sketcher.Constraint("Horizontal", 2))
sketch12.addConstraint(Sketcher.Constraint("Vertical", 3))
sketch12.addConstraint(Sketcher.Constraint("DistanceX", -1, 1, 0, 2, Q("2 mm")))
sketch12.addConstraint(Sketcher.Constraint("DistanceY", 1, 2, -1, 1, Q("15 mm")))
sketch12.addConstraint(Sketcher.Constraint("DistanceY", 1, 2, 1, 1, Q("12.973509 mm")))
sketch12.addConstraint(Sketcher.Constraint("DistanceX", 0, 2, 0, 1, Q("26.046655 mm")))
pocket4 = body.newObject("PartDesign::Pocket", "Pocket003")
pocket4.Profile = sketch12
pocket4.Length = 52

sketch13 = body.newObject("Sketcher::SketchObject", "Sketch012")
sketch13.AttachmentSupport = (doc.getObject("XZ_Plane"), [""])
sketch13.MapMode = "FlatFace"
sketch13.addGeometry(Part.LineSegment(App.Vector(-7.5, -15, 0), App.Vector(-2.116621, -15, 0)), False)
sketch13.addGeometry(Part.ArcOfCircle(Part.Circle(App.Vector(10, -7.5, 0), App.Vector(0, 0, 1), 14.25), math.radians(-148.243136), math.radians(-134.567929)), False)
sketch13.addGeometry(Part.ArcOfCircle(Part.Circle(App.Vector(10, -7.5, 0), App.Vector(0, 0, 1), 14.25), math.radians(-134.567929), math.radians(-117.454765)), False)
sketch13.addGeometry(Part.LineSegment(App.Vector(3.430064, -20.145095, 0), App.Vector(10, -30, 0)), False)
sketch13.addGeometry(Part.LineSegment(App.Vector(10, -30, 0), App.Vector(16.569936, -20.145095, 0)), False)
sketch13.addGeometry(Part.ArcOfCircle(Part.Circle(App.Vector(10, -7.5, 0), App.Vector(0, 0, 1), 14.25), math.radians(-62.545235), math.radians(-45.432071)), False)
sketch13.addGeometry(Part.ArcOfCircle(Part.Circle(App.Vector(10, -7.5, 0), App.Vector(0, 0, 1), 14.25), math.radians(-45.432071), math.radians(-31.756864)), False)
sketch13.addGeometry(Part.LineSegment(App.Vector(22.116621, -15, 0), App.Vector(27.5, -15, 0)), False)
sketch13.addGeometry(Part.LineSegment(App.Vector(27.5, -15, 0), App.Vector(20, -25.909091, 0)), False)
sketch13.addGeometry(Part.LineSegment(App.Vector(20, -25.909091, 0), App.Vector(13.538462, -35.307692, 0)), False)
sketch13.addGeometry(Part.LineSegment(App.Vector(13.538462, -35.307692, 0), App.Vector(20, -45, 0)), False)
sketch13.addGeometry(Part.LineSegment(App.Vector(20, -45, 0), App.Vector(20, -55, 0)), False)
sketch13.addGeometry(Part.LineSegment(App.Vector(20, -55, 0), App.Vector(10, -40.454545, 0)), False)
sketch13.addGeometry(Part.LineSegment(App.Vector(10, -40.454545, 0), App.Vector(0, -55, 0)), False)
sketch13.addGeometry(Part.LineSegment(App.Vector(0, -55, 0), App.Vector(0, -45, 0)), False)
sketch13.addGeometry(Part.LineSegment(App.Vector(0, -45, 0), App.Vector(6.461538, -35.307692, 0)), False)
sketch13.addGeometry(Part.LineSegment(App.Vector(6.461538, -35.307692, 0), App.Vector(0, -25.909091, 0)), False)
sketch13.addGeometry(Part.LineSegment(App.Vector(0, -25.909091, 0), App.Vector(-7.5, -15, 0)), False)
sketch13.addConstraint(Sketcher.Constraint("Coincident", 0, 2, 1, 1))
sketch13.addConstraint(Sketcher.Constraint("Tangent", 1, 2, 2, 1))
sketch13.addConstraint(Sketcher.Constraint("Coincident", 2, 2, 3, 1))
sketch13.addConstraint(Sketcher.Constraint("Coincident", 3, 2, 4, 1))
sketch13.addConstraint(Sketcher.Constraint("Coincident", 4, 2, 5, 1))
sketch13.addConstraint(Sketcher.Constraint("Tangent", 5, 2, 6, 1))
sketch13.addConstraint(Sketcher.Constraint("Coincident", 6, 2, 7, 1))
sketch13.addConstraint(Sketcher.Constraint("Coincident", 7, 2, 8, 1))
sketch13.addConstraint(Sketcher.Constraint("Coincident", 8, 2, 9, 1))
sketch13.addConstraint(Sketcher.Constraint("Coincident", 9, 2, 10, 1))
sketch13.addConstraint(Sketcher.Constraint("Coincident", 10, 2, 11, 1))
sketch13.addConstraint(Sketcher.Constraint("Coincident", 11, 2, 12, 1))
sketch13.addConstraint(Sketcher.Constraint("Coincident", 12, 2, 13, 1))
sketch13.addConstraint(Sketcher.Constraint("Coincident", 13, 2, 14, 1))
sketch13.addConstraint(Sketcher.Constraint("Coincident", 14, 2, 15, 1))
sketch13.addConstraint(Sketcher.Constraint("Coincident", 15, 2, 16, 1))
sketch13.addConstraint(Sketcher.Constraint("Coincident", 16, 2, 17, 1))
sketch13.addConstraint(Sketcher.Constraint("Coincident", 17, 2, 0, 1))
sketch13.addConstraint(Sketcher.Constraint("Horizontal", 0))
sketch13.addConstraint(Sketcher.Constraint("Horizontal", 7))
sketch13.addConstraint(Sketcher.Constraint("Vertical", 11))
sketch13.addConstraint(Sketcher.Constraint("Vertical", 14))
sketch13.addConstraint(Sketcher.Constraint("Coincident", 5, 3, 1, 3))
sketch13.addConstraint(Sketcher.Constraint("Equal", 1, 2))
sketch13.addConstraint(Sketcher.Constraint("Equal", 2, 5))
sketch13.addConstraint(Sketcher.Constraint("Equal", 5, 6))
sketch13.addConstraint(Sketcher.Constraint("PointOnObject", 1, 2, -2))
sketch13.addConstraint(Sketcher.Constraint("PointOnObject", 13, 2, -2))
sketch13.addConstraint(Sketcher.Constraint("PointOnObject", 16, 2, -2))
sketch13.addConstraint(Sketcher.Constraint("Parallel", 8, 9))
sketch13.addConstraint(Sketcher.Constraint("Parallel", 3, 10))
sketch13.addConstraint(Sketcher.Constraint("Parallel", 9, 13))
sketch13.addConstraint(Sketcher.Constraint("Parallel", 4, 15))
sketch13.addConstraint(Sketcher.Constraint("Parallel", 12, 16))
sketch13.addConstraint(Sketcher.Constraint("Parallel", 16, 17))
sketch13.addConstraint(Sketcher.Constraint("Horizontal", 2, 2, 4, 2))
sketch13.addConstraint(Sketcher.Constraint("Horizontal", 1, 2, 5, 2))
sketch13.addConstraint(Sketcher.Constraint("Horizontal", 0, 2, 6, 2))
sketch13.addConstraint(Sketcher.Constraint("Horizontal", 11, 2, 13, 2))
sketch13.addConstraint(Sketcher.Constraint("Horizontal", 10, 2, 14, 2))
sketch13.addConstraint(Sketcher.Constraint("Horizontal", 9, 2, 15, 2))
sketch13.addConstraint(Sketcher.Constraint("Horizontal", 8, 2, 16, 2))
sketch13.addConstraint(Sketcher.Constraint("Vertical", 6, 3, 3, 2))
sketch13.addConstraint(Sketcher.Constraint("Vertical", 5, 2, 8, 2))
sketch13.addConstraint(Sketcher.Constraint("Vertical", 8, 2, 10, 2))
sketch13.addConstraint(Sketcher.Constraint("DistanceY", 11, 2, 11, 1, Q("10 mm")))
sketch13.addConstraint(Sketcher.Constraint("Radius", 1, Q("14.25 mm")))
sketch13.addConstraint(Sketcher.Constraint("DistanceX", -1, 1, 1, 3, Q("10 mm")))
sketch13.addConstraint(Sketcher.Constraint("DistanceY", 0, 2, -1, 1, Q("15 mm")))
sketch13.addConstraint(Sketcher.Constraint("DistanceY", 3, 2, -1, 1, Q("30 mm")))
sketch13.addConstraint(Sketcher.Constraint("DistanceY", 10, 2, -1, 1, Q("45 mm")))
sketch13.addConstraint(Sketcher.Constraint("DistanceY", 1, 3, -1, 1, Q("7.5 mm")))
sketch13.addConstraint(Sketcher.Constraint("DistanceX", -1, 1, 7, 2, Q("27.5 mm")))
sketch13.addConstraint(Sketcher.Constraint("DistanceY", 9, 2, 8, 2, Q("9.398601 mm")))
sketch13.addConstraint(Sketcher.Constraint("DistanceX", 2, 2, 9, 2, Q("10.108398 mm")))
pad9 = body.newObject("PartDesign::Pad", "Pad008")
pad9.Profile = sketch13
pad9.Length = 2
pad9.Reversed = True

doc.recompute()
